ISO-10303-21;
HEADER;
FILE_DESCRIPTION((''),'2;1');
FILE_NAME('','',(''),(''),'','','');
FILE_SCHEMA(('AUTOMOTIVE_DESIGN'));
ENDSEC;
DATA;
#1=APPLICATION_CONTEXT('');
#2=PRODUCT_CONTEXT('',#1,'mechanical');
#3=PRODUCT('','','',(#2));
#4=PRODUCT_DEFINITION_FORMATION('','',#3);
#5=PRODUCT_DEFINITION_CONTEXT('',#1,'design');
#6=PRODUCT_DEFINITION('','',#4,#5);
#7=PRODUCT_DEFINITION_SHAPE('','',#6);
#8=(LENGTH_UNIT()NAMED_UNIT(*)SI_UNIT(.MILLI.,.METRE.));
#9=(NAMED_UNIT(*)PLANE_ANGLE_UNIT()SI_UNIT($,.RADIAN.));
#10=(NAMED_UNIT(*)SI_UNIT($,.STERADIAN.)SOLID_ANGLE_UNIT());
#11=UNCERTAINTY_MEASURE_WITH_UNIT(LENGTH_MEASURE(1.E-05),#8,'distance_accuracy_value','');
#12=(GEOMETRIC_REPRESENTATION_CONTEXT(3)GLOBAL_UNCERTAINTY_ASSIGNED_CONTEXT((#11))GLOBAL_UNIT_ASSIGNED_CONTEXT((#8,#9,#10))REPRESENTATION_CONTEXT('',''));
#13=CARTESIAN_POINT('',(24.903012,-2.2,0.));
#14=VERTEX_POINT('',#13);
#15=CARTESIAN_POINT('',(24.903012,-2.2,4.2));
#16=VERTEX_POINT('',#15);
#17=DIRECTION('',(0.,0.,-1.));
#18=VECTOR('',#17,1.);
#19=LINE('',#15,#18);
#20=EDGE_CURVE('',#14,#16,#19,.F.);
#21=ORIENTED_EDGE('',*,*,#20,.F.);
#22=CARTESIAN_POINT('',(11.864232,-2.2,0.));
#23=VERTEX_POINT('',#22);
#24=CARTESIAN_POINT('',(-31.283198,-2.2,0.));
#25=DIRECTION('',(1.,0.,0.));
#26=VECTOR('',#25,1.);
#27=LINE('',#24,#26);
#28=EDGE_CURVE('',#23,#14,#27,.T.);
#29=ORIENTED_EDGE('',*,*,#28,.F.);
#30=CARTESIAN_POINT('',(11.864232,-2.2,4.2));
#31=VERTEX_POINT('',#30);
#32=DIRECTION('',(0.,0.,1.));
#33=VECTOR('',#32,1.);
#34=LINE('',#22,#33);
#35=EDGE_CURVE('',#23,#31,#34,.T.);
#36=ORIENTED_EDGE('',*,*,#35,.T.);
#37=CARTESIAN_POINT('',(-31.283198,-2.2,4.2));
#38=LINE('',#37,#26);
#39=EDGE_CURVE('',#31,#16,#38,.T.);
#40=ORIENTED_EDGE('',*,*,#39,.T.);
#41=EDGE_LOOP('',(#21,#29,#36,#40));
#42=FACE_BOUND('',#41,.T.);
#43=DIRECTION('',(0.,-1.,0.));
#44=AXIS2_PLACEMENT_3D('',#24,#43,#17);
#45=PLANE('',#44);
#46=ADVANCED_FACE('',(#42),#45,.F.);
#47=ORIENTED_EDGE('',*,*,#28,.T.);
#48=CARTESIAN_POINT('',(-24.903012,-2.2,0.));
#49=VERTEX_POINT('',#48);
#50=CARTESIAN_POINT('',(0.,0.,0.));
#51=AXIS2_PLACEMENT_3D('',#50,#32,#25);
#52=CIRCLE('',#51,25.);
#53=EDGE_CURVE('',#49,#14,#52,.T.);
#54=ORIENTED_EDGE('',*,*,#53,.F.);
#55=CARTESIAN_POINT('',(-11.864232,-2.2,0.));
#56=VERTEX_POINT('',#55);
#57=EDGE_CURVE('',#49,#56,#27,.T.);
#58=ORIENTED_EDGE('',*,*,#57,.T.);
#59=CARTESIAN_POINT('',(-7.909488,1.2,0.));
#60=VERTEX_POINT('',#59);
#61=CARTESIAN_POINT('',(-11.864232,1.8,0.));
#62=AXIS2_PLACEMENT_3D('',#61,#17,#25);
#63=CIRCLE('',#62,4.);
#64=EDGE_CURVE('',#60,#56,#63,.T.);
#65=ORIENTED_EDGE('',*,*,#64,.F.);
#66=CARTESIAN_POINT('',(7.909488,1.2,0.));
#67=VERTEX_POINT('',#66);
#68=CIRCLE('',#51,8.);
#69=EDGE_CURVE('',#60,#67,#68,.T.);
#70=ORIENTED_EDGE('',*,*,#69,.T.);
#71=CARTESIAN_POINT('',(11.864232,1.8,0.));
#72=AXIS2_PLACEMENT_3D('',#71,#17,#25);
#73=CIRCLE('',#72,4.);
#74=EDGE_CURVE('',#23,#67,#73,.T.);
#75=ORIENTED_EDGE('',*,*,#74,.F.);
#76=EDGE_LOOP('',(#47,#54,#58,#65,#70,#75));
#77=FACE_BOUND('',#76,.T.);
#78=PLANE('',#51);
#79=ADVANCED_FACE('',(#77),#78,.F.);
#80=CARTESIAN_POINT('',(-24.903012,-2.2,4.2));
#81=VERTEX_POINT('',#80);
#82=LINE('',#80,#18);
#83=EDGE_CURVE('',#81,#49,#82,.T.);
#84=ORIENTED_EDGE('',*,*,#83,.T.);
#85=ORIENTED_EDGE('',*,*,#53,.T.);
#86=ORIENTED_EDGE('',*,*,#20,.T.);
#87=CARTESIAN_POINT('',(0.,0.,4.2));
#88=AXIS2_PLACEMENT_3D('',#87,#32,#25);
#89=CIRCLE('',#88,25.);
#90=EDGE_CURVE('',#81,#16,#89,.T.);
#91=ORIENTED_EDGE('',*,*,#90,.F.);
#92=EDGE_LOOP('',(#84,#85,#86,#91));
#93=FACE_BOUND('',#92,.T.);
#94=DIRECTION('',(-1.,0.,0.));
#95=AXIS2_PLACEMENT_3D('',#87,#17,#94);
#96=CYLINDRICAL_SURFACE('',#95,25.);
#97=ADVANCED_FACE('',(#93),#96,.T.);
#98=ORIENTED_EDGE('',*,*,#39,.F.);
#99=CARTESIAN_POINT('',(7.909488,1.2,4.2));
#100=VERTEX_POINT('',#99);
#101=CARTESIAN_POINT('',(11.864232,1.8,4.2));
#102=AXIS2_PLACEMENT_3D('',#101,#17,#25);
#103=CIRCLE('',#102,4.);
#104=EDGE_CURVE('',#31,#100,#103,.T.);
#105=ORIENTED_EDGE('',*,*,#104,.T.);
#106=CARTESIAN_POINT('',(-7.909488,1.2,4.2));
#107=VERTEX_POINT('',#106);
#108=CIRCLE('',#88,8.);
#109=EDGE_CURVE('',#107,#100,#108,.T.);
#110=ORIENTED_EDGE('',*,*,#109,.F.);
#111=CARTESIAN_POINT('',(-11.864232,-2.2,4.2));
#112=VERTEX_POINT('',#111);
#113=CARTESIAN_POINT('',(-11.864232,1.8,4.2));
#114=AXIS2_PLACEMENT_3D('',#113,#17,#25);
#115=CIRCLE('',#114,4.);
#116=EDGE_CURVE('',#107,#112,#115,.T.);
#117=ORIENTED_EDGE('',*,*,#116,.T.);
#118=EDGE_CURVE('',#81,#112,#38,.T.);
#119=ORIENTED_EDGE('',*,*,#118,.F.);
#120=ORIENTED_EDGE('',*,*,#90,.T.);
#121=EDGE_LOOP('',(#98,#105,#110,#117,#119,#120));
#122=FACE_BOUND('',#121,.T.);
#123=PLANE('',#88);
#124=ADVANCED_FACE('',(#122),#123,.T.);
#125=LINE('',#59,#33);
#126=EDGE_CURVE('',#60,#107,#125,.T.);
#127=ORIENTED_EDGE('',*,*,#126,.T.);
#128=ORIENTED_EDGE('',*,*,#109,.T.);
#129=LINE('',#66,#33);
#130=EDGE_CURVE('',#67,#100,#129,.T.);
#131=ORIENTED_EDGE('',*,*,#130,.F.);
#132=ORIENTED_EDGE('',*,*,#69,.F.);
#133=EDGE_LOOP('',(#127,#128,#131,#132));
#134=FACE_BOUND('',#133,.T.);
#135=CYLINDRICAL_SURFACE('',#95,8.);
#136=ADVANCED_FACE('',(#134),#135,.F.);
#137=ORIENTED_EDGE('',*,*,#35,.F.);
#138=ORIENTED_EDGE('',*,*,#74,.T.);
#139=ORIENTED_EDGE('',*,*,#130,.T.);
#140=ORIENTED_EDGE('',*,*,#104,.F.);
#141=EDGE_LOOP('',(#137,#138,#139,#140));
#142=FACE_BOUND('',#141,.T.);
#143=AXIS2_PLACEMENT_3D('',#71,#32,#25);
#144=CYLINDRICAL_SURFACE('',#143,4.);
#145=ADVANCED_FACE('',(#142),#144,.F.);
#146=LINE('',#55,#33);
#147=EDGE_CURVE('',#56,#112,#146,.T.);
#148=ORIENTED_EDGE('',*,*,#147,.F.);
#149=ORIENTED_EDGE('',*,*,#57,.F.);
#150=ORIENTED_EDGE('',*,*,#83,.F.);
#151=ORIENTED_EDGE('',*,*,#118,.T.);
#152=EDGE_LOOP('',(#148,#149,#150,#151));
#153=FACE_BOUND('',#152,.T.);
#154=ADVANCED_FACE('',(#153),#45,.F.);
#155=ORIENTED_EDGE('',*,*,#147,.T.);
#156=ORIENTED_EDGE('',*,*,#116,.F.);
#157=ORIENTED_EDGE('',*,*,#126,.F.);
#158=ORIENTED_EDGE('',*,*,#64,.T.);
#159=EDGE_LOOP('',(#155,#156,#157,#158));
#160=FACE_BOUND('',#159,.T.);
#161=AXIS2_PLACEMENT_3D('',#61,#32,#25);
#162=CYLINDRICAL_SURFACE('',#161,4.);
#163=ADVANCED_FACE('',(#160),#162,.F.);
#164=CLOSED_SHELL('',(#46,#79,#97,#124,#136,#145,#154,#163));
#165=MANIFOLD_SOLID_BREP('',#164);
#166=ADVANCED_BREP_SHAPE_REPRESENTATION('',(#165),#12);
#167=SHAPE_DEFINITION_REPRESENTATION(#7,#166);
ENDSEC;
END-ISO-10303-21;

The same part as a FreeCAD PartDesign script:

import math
import FreeCAD as App
import Part
import Sketcher
from FreeCAD import Vector
Q = App.Units.Quantity

doc = App.newDocument("Part")
body = doc.addObject("PartDesign::Body", "Body")

# Sketch on XY plane
sketch1 = body.newObject("Sketcher::SketchObject", "Sketch")
sketch1.AttachmentSupport = (doc.getObject("XY_Plane"), [""])
sketch1.MapMode = "FlatFace"
sketch1.addGeometry([
    Part.Circle(Vector(0, 0, 0), Vector(0, 0, 1), 25),
    Part.Circle(Vector(0, 0, 0), Vector(0, 0, 1), 8),
], False)
sketch1.addConstraint([
    Sketcher.Constraint("Coincident", 0, 3, -1, 1),
    Sketcher.Constraint("Coincident", 1, 3, -1, 1),
    Sketcher.Constraint("Diameter", 0, Q("50 mm")),
    Sketcher.Constraint("Diameter", 1, Q("16 mm")),
])
pad1 = body.newObject("PartDesign::Pad", "Pad")
pad1.Profile = sketch1
pad1.Length = 4.2

# Sketch on XY plane
sketch2 = body.newObject("Sketcher::SketchObject", "Sketch001")
sketch2.AttachmentSupport = (doc.getObject("XY_Plane"), [""])
sketch2.MapMode = "FlatFace"
sketch2.AttachmentOffset = App.Placement(Vector(0, 0, 4.2), App.Rotation())
sketch2.addGeometry([
    Part.LineSegment(Vector(-31, -2, 0), Vector(32, -2, 0)),
    Part.LineSegment(Vector(32, -2, 0), Vector(32, 33, 0)),
    Part.LineSegment(Vector(32, 33, 0), Vector(-32, 33, 0)),
    Part.LineSegment(Vector(-32, 33, 0), Vector(-31, -2, 0)),
], False)
sketch2.addConstraint([
    Sketcher.Constraint("Coincident", 0, 2, 1, 1),
    Sketcher.Constraint("Coincident", 1, 2, 2, 1),
    Sketcher.Constraint("Coincident", 2, 2, 3, 1),
    Sketcher.Constraint("Coincident", 3, 2, 0, 1),
    Sketcher.Constraint("Horizontal", 0),
    Sketcher.Constraint("Vertical", 1),
    Sketcher.Constraint("Horizontal", 2),
    Sketcher.Constraint("DistanceY", 0, 2, -1, 1, Q("2.2 mm")),
    Sketcher.Constraint("DistanceX", 3, 2, -1, 1, Q("31.283198 mm")),
    Sketcher.Constraint("DistanceX", 0, 1, 0, 2, Q("63.782754 mm")),
    Sketcher.Constraint("DistanceX", 2, 2, 2, 1, Q("64.238888 mm")),
    Sketcher.Constraint("DistanceY", 1, 1, 1, 2, Q("34.818237 mm")),
])
pocket1 = body.newObject("PartDesign::Pocket", "Pocket")
pocket1.Profile = sketch2
pocket1.Type = "ThroughAll"

# Sketch on XY plane
sketch3 = body.newObject("Sketcher::SketchObject", "Sketch002")
sketch3.AttachmentSupport = (doc.getObject("XY_Plane"), [""])
sketch3.MapMode = "FlatFace"
sketch3.AttachmentOffset = App.Placement(Vector(0, 0, 4.2), App.Rotation())
sketch3.addGeometry([
    Part.LineSegment(Vector(7.7, -2.2, 0), Vector(11.9, -2.2, 0)),  # 0
    Part.ArcOfCircle(Part.Circle(Vector(11.9, 1.8, 0), Vector(0, 0, 1), 4), math.radians(-171), math.radians(-90)),  # 1
    Part.ArcOfCircle(Part.Circle(Vector(0, 0, 0), Vector(0, 0, 1), 8), math.radians(-16), math.radians(9)),  # 2
    Part.LineSegment(Vector(-11.9, -2.2, 0), Vector(-7.7, -2.2, 0)),  # 3
    Part.ArcOfCircle(Part.Circle(Vector(0, 0, 0), Vector(0, 0, 1), 8), math.radians(171), math.radians(196)),  # 4
    Part.ArcOfCircle(Part.Circle(Vector(-11.9, 1.8, 0), Vector(0, 0, 1), 4), math.radians(-90), math.radians(-9)),  # 5
], False)
sketch3.addConstraint([
    Sketcher.Constraint("Tangent", 0, 2, 1, 2),
    Sketcher.Constraint("Tangent", 1, 1, 2, 2),
    Sketcher.Constraint("Coincident", 2, 1, 0, 1),
    Sketcher.Constraint("Coincident", 3, 2, 4, 2),
    Sketcher.Constraint("Tangent", 4, 1, 5, 2),
    Sketcher.Constraint("Tangent", 5, 1, 3, 1),
    Sketcher.Constraint("Horizontal", 0),
    Sketcher.Constraint("Horizontal", 3),
    Sketcher.Constraint("Coincident", 2, 3, -1, 1),
    Sketcher.Constraint("Coincident", 4, 3, -1, 1),
    Sketcher.Constraint("Equal", 2, 4),
    Sketcher.Constraint("Equal", 1, 5),
    Sketcher.Constraint("Horizontal", 1, 3, 5, 3),
    Sketcher.Constraint("Radius", 1, Q("4 mm")),
    Sketcher.Constraint("Radius", 2, Q("8 mm")),
    Sketcher.Constraint("DistanceY", -1, 1, 1, 3, Q("1.8 mm")),
])
pad2 = body.newObject("PartDesign::Pad", "Pad001")
pad2.Profile = sketch3
pad2.Length = 4.2
pad2.Reversed = True

doc.recompute()
